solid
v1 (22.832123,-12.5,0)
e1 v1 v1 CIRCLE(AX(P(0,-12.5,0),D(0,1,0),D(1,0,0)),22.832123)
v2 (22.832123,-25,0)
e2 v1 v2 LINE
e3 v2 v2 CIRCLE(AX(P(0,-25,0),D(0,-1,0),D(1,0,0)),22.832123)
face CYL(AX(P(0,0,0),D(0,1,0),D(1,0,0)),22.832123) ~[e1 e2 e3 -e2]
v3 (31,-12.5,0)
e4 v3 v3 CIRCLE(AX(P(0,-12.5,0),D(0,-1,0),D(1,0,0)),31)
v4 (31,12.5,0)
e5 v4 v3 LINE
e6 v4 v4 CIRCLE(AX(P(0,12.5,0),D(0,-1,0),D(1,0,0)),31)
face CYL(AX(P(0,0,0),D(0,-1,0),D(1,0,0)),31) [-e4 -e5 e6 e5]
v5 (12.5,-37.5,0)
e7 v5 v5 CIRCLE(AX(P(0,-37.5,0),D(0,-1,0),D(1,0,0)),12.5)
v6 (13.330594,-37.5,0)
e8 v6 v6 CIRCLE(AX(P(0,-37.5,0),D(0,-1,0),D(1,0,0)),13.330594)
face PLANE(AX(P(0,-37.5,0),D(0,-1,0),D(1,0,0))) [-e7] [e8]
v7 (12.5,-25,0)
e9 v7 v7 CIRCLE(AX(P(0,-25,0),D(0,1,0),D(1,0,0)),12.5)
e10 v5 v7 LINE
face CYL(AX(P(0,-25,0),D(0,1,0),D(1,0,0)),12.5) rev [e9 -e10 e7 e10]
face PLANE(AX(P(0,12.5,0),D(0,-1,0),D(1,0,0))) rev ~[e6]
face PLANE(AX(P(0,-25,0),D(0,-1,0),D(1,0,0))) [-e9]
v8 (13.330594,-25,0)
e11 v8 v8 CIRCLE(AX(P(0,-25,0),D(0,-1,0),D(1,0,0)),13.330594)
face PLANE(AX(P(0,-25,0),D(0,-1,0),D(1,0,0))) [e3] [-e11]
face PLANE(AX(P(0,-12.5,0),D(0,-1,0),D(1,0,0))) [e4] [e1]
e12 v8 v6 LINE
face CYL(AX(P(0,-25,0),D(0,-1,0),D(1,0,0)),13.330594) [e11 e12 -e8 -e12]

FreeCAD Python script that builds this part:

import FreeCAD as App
import Part
import Sketcher
from FreeCAD import Vector
Q = App.Units.Quantity

doc = App.newDocument("Part")
body = doc.addObject("PartDesign::Body", "Body")

sketch1 = doc.addObject("Sketcher::SketchObject", "Sketch")
body.addObject(sketch1)
sketch1.AttachmentSupport = (doc.XZ_Plane, [""])
sketch1.MapMode = "FlatFace"
sketch1.addGeometry(Part.Circle(Vector(0, 0, 0), Vector(0, 0, 1), 31), False)
sketch1.addConstraint([
    Sketcher.Constraint("Coincident", 0, 3, -1, 1),
    Sketcher.Constraint("Diameter", 0, Q("62 mm")),
])
pad1 = doc.addObject("PartDesign::Pad", "Pad")
body.addObject(pad1)
pad1.Profile = sketch1
pad1.Length = 25
pad1.Midplane = True

sketch2 = doc.addObject("Sketcher::SketchObject", "Sketch001")
body.addObject(sketch2)
sketch2.AttachmentSupport = (doc.XZ_Plane, [""])
sketch2.MapMode = "FlatFace"
sketch2.addGeometry(Part.Circle(Vector(0, 0, 0), Vector(0, 0, 1), 22.832123), False)
sketch2.addConstraint([
    Sketcher.Constraint("Coincident", 0, 3, -1, 1),
    Sketcher.Constraint("Diameter", 0, Q("45.664246 mm")),
])
pad2 = doc.addObject("PartDesign::Pad", "Pad001")
body.addObject(pad2)
pad2.Profile = sketch2
pad2.Length = 25

sketch3 = doc.addObject("Sketcher::SketchObject", "Sketch002")
body.addObject(sketch3)
sketch3.AttachmentSupport = (doc.XZ_Plane, [""])
sketch3.MapMode = "FlatFace"
sketch3.AttachmentOffset = App.Placement(Vector(0, 0, 25), App.Rotation())
sketch3.addGeometry([
    Part.Circle(Vector(0, 0, 0), Vector(0, 0, 1), 13.330594),
    Part.Circle(Vector(0, 0, 0), Vector(0, 0, 1), 12.5),
], False)
sketch3.addConstraint([
    Sketcher.Constraint("Coincident", 0, 3, -1, 1),
    Sketcher.Constraint("Coincident", 1, 3, -1, 1),
    Sketcher.Constraint("Diameter", 1, Q("25 mm")),
    Sketcher.Constraint("Diameter", 0, Q("26.661188 mm")),
])
pad3 = doc.addObject("PartDesign::Pad", "Pad002")
body.addObject(pad3)
pad3.Profile = sketch3
pad3.Length = 25
pad3.Midplane = True

doc.recompute()
